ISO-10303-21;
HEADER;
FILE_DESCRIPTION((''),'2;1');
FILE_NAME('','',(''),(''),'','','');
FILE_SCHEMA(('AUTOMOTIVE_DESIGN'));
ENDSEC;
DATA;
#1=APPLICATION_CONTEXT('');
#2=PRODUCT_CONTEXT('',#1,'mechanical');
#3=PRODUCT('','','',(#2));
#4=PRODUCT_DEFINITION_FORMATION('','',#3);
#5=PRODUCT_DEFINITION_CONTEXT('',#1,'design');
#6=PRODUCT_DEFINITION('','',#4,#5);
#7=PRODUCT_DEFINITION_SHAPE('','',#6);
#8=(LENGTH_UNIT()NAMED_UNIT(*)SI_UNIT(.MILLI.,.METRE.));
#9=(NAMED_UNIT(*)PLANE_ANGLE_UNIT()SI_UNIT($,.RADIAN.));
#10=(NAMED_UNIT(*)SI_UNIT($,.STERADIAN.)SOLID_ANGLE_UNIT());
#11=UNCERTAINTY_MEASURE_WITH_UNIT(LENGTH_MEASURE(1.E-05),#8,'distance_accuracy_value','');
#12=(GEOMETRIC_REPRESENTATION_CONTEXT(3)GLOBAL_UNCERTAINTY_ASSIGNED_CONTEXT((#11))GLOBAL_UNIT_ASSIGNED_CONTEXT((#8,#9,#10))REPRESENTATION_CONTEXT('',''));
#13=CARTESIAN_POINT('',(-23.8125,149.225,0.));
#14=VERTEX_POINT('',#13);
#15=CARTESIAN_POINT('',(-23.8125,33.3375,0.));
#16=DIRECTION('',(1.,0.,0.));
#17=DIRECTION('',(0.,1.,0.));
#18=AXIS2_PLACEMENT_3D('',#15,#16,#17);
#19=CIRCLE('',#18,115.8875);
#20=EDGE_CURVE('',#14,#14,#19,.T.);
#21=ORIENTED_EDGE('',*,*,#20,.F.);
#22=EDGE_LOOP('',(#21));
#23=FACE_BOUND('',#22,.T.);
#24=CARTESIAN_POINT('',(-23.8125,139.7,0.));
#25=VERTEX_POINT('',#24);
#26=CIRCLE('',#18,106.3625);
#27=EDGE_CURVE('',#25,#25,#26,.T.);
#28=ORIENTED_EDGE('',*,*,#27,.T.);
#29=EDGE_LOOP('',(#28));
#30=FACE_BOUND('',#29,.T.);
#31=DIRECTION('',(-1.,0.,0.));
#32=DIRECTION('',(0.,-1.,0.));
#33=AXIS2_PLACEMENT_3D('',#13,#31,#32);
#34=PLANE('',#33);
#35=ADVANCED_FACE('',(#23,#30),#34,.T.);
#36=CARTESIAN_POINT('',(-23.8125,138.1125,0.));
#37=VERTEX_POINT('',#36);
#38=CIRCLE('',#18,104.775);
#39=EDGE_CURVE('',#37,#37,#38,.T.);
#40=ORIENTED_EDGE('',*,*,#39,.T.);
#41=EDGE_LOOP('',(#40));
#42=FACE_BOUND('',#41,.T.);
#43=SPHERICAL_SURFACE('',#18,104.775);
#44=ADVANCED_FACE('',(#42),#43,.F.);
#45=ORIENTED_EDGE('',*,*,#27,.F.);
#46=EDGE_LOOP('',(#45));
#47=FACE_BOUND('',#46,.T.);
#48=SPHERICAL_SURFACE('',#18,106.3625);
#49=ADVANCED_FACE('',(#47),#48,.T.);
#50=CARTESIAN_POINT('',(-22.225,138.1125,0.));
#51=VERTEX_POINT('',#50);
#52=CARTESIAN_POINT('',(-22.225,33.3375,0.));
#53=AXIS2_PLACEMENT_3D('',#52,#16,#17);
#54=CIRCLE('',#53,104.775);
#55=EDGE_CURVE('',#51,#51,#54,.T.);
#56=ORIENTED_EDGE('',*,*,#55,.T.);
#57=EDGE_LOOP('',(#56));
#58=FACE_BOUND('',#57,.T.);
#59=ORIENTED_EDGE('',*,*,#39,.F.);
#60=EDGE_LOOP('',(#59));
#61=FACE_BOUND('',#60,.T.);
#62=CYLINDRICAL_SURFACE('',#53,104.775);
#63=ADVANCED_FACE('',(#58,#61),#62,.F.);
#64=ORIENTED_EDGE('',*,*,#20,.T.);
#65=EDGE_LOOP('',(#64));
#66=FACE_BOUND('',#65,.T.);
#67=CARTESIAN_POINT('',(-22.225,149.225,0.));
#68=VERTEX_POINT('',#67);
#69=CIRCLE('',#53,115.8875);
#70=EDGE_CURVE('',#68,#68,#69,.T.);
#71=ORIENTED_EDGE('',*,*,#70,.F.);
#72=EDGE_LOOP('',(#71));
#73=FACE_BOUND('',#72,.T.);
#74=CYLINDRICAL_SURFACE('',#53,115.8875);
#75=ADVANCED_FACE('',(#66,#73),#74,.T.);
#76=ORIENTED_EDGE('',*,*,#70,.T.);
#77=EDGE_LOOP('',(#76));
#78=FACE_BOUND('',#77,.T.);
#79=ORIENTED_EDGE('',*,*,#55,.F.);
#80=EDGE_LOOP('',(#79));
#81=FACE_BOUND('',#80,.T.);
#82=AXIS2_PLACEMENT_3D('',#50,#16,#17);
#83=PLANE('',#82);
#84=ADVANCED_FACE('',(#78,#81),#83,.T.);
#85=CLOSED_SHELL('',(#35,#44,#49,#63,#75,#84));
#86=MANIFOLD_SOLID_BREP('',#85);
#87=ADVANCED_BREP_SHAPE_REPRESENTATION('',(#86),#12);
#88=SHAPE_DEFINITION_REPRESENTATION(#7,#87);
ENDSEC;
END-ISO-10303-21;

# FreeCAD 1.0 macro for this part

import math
import FreeCAD as App
import Part
import Sketcher

V = App.Vector
Q = App.Units.Quantity

doc = App.newDocument("Part")
body = doc.addObject("PartDesign::Body", "Body")

# Sketch on XY plane
sketch1 = doc.addObject("Sketcher::SketchObject", "Sketch")
body.addObject(sketch1)
sketch1.AttachmentSupport = (doc.XY_Plane, [""])
sketch1.MapMode = "FlatFace"
sketch1.addGeometry([
    Part.LineSegment(V(-22.2, 138.1, 0), V(-22.2, 149.2, 0)),  # 0
    Part.LineSegment(V(-22.2, 149.2, 0), V(-23.8, 149.2, 0)),  # 1
    Part.LineSegment(V(-23.8, 149.2, 0), V(-23.8, 139.7, 0)),  # 2
    Part.ArcOfCircle(Part.Circle(V(-23.8, 33.3, 0), V(0, 0, 1), 106.4), math.radians(90), math.radians(180)),  # 3
    Part.LineSegment(V(-130.2, 33.3, 0), V(-128.6, 33.3, 0)),  # 4
    Part.ArcOfCircle(Part.Circle(V(-23.8, 33.3, 0), V(0, 0, 1), 104.8), math.radians(90), math.radians(180)),  # 5
    Part.LineSegment(V(-23.8, 138.1, 0), V(-22.2, 138.1, 0)),  # 6
], False)
sketch1.addGeometry(Part.LineSegment(V(-22.2, 33.3, 0), V(-130.2, 33.3, 0)), True)  # axis
sketch1.addConstraint([
    Sketcher.Constraint("Coincident", 0, 2, 1, 1),
    Sketcher.Constraint("Coincident", 1, 2, 2, 1),
    Sketcher.Constraint("Coincident", 2, 2, 3, 1),
    Sketcher.Constraint("Coincident", 3, 2, 4, 1),
    Sketcher.Constraint("Coincident", 4, 2, 5, 2),
    Sketcher.Constraint("Tangent", 5, 1, 6, 1),
    Sketcher.Constraint("Coincident", 6, 2, 0, 1),
    Sketcher.Constraint("Vertical", 0),
    Sketcher.Constraint("Horizontal", 1),
    Sketcher.Constraint("Vertical", 2),
    Sketcher.Constraint("Horizontal", 4),
    Sketcher.Constraint("Horizontal", 6),
    Sketcher.Constraint("Horizontal", 7),
    Sketcher.Constraint("Coincident", 5, 3, 3, 3),
    Sketcher.Constraint("Coincident", 7, 2, 3, 2),
    Sketcher.Constraint("Horizontal", 5, 3, 3, 2),
    Sketcher.Constraint("Vertical", 5, 3, 1, 2),
    Sketcher.Constraint("Vertical", 6, 2, 7, 1),
    Sketcher.Constraint("Equal", 1, 4),
    Sketcher.Constraint("Radius", 3, Q("4.1875 in")),
    Sketcher.Constraint("Radius", 5, Q("4.125 in")),
    Sketcher.Constraint("DistanceY", -1, 1, 2, 2, Q("5.5 in")),
    Sketcher.Constraint("DistanceY", 0, 1, 0, 2, Q("0.4375 in")),
    Sketcher.Constraint("DistanceX", 3, 3, -1, 1, Q("0.9375 in")),
])
revolution = doc.addObject("PartDesign::Revolution", "Revolution")
body.addObject(revolution)
revolution.Profile = sketch1
revolution.ReferenceAxis = (sketch1, ["Axis0"])
revolution.Angle = 360

doc.recompute()
